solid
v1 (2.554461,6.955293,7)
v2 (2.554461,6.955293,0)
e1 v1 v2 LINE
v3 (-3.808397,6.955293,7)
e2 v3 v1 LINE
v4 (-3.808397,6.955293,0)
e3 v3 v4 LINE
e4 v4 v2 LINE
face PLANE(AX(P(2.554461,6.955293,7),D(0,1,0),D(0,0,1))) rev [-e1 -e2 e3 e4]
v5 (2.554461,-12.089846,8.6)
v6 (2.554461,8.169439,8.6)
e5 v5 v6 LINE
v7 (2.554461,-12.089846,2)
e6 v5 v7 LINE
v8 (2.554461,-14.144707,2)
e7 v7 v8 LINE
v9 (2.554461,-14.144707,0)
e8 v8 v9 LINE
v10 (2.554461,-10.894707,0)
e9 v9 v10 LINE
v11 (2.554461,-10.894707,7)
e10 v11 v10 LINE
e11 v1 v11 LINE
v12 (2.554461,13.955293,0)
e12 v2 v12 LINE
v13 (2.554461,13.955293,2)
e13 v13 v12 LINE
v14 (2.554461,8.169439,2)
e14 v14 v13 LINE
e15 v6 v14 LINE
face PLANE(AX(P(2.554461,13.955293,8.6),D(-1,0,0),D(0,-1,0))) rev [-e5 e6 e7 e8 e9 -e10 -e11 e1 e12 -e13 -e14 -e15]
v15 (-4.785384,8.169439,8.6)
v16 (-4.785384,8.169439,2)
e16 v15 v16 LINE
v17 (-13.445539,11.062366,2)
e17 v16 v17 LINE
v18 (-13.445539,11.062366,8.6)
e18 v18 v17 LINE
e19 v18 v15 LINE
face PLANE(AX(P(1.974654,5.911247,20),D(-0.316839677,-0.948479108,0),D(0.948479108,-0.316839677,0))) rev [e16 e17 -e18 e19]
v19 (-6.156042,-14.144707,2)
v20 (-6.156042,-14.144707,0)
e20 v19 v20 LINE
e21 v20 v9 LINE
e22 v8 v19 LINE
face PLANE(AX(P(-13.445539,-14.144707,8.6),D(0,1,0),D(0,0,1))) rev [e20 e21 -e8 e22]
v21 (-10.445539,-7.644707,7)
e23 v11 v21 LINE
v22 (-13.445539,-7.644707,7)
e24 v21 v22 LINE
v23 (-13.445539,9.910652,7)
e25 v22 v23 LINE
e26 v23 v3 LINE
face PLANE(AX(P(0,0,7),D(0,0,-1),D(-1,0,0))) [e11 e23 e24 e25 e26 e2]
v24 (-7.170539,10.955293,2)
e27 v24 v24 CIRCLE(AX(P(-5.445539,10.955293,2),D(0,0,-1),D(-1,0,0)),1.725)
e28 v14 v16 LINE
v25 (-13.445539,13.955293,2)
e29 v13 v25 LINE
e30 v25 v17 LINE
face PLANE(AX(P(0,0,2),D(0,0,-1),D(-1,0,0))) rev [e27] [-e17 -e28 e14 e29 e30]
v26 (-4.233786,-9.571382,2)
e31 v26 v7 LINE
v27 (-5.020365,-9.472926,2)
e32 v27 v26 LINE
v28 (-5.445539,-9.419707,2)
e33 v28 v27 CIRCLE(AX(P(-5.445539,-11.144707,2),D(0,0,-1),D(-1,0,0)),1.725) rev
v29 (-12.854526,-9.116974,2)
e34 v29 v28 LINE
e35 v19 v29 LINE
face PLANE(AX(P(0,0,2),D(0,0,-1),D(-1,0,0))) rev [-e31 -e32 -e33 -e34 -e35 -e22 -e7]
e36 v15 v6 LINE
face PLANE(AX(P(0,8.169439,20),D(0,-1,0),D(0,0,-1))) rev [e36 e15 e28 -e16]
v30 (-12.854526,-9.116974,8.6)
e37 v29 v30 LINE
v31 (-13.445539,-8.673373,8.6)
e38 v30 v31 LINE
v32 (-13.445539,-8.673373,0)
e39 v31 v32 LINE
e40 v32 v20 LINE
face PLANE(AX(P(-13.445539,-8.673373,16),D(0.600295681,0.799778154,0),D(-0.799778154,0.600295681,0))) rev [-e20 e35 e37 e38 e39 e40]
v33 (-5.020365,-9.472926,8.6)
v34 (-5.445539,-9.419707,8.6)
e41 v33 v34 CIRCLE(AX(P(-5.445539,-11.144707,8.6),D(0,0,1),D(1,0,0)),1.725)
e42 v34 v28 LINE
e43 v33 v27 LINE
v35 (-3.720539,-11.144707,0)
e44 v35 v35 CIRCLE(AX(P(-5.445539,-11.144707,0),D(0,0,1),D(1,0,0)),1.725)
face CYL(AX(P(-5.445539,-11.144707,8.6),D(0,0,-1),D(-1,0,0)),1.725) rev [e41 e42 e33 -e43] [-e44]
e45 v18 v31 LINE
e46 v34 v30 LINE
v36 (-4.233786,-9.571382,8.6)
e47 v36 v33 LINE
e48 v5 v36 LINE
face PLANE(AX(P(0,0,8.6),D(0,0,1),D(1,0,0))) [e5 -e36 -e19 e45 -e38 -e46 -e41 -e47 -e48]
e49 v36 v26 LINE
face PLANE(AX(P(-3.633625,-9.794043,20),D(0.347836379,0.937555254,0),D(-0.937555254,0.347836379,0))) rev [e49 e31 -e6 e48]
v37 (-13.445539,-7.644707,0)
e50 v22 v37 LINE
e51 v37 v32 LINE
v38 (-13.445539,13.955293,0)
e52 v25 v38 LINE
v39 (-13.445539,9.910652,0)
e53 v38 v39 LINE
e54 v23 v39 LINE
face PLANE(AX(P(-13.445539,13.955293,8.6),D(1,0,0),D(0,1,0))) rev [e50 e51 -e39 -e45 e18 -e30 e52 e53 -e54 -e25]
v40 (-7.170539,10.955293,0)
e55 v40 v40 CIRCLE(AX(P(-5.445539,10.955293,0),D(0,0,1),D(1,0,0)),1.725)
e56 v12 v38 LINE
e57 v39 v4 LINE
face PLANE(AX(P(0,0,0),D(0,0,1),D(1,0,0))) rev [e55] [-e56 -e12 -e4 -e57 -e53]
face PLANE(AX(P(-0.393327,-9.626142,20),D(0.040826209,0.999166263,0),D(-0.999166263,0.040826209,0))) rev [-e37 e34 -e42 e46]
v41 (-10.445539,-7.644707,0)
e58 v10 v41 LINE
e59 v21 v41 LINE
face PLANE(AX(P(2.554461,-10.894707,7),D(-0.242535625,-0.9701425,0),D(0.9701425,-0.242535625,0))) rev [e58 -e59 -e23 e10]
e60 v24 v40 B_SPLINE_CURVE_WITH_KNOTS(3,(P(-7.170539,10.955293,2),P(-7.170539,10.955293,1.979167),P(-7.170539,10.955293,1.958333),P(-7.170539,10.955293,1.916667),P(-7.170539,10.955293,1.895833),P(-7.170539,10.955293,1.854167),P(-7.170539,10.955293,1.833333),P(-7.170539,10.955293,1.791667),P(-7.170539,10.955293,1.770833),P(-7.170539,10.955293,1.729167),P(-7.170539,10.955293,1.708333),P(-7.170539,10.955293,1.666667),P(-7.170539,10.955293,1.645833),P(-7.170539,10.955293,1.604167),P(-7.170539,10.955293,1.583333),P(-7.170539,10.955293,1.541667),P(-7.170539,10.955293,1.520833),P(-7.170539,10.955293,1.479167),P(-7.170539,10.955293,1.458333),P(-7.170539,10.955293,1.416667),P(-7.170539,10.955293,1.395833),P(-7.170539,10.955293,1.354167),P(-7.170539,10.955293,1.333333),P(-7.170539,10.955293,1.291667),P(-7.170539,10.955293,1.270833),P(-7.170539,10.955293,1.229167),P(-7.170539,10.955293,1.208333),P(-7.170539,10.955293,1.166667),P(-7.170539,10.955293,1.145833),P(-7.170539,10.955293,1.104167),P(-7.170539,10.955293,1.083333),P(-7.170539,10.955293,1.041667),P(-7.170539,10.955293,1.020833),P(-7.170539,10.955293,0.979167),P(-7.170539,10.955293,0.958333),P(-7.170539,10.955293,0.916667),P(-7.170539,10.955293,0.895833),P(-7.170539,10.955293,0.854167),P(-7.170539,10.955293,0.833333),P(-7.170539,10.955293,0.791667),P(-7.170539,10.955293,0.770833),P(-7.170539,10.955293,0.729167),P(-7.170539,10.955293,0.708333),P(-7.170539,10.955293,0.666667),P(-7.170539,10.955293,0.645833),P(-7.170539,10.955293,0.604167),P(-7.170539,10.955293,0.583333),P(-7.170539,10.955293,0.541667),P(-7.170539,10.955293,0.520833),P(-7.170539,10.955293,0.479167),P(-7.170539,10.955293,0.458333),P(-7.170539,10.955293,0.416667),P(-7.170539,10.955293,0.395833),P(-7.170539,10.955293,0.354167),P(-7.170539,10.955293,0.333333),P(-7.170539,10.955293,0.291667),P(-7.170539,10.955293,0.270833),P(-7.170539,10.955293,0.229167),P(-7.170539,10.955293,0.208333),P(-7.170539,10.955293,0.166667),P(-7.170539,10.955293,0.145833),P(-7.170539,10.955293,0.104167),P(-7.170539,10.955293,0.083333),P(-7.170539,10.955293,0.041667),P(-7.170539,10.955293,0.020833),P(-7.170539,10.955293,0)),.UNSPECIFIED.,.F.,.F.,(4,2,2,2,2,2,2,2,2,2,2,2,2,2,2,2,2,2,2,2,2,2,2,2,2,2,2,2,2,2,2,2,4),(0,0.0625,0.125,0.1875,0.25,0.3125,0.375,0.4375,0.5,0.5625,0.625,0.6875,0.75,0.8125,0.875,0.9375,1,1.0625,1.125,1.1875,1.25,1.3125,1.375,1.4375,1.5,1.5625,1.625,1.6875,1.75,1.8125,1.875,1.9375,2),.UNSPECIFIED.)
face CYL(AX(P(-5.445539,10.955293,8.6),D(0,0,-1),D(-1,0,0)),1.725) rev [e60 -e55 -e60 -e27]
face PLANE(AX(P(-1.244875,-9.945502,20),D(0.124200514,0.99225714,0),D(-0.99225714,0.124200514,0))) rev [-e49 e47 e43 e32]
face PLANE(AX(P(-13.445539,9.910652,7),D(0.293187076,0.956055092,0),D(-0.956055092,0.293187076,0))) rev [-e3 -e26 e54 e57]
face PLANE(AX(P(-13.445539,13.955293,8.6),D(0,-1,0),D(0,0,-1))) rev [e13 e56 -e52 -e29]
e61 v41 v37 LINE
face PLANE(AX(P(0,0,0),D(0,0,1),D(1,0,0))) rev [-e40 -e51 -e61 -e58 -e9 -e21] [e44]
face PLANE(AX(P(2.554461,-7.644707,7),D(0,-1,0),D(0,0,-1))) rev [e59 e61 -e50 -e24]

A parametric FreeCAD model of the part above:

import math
import FreeCAD as App
import Part
import Sketcher
Q = App.Units.Quantity


def add_polygon(sketch, points):
    """Adds a closed chain of lines whose ends are joined by coincident constraints."""
    first, n = sketch.GeometryCount, len(points)
    for a, b in zip(points, points[1:] + points[:1]):
        sketch.addGeometry(Part.LineSegment(App.Vector(*a, 0), App.Vector(*b, 0)), False)
    for i in range(n):
        sketch.addConstraint(Sketcher.Constraint("Coincident", first + i, 2, first + (i + 1) % n, 1))

doc = App.newDocument("Part")
body = doc.addObject("PartDesign::Body", "Body")

# Sketch on XY plane
sketch1 = body.newObject("Sketcher::SketchObject", "Sketch")
sketch1.AttachmentSupport = (doc.getObject("XY_Plane"), [""])
sketch1.MapMode = "FlatFace"
add_polygon(sketch1, [(-13.4, 14), (-13.4, -14.1), (2.6, -14.1), (2.6, 14)])  # lines 0-3
sketch1.addGeometry(Part.Circle(App.Vector(-5.4, -11.1, 0), App.Vector(0, 0, 1), 1.7), False)  # 4
sketch1.addGeometry(Part.Circle(App.Vector(-5.4, 11, 0), App.Vector(0, 0, 1), 1.7), False)  # 5
sketch1.addConstraint([
    Sketcher.Constraint("Vertical", 0),
    Sketcher.Constraint("Horizontal", 1),
    Sketcher.Constraint("Vertical", 2),
    Sketcher.Constraint("Horizontal", 3),
    Sketcher.Constraint("Equal", 4, 5),
    Sketcher.Constraint("Vertical", 4, 3, 5, 3),
    Sketcher.Constraint("Diameter", 4, Q("3.45 mm")),
    Sketcher.Constraint("DistanceX", 1, 1, 1, 2, Q("16 mm")),
    Sketcher.Constraint("DistanceY", 0, 2, 0, 1, Q("28.1 mm")),
    Sketcher.Constraint("DistanceX", 0, 2, 4, 3, Q("8 mm")),
    Sketcher.Constraint("DistanceY", 0, 2, 4, 3, Q("3 mm")),
    Sketcher.Constraint("DistanceY", 5, 3, 2, 2, Q("3 mm")),
    Sketcher.Constraint("DistanceX", 4, 3, -1, 1, Q("5.445539 mm")),
    Sketcher.Constraint("DistanceY", 4, 3, -1, 1, Q("11.144707 mm")),
])
pad1 = body.newObject("PartDesign::Pad", "Pad")
pad1.Profile = sketch1
pad1.Length = 8.6

# Sketch on XY plane
sketch2 = body.newObject("Sketcher::SketchObject", "Sketch001")
sketch2.AttachmentSupport = (doc.getObject("XY_Plane"), [""])
sketch2.MapMode = "FlatFace"
add_polygon(sketch2, [(3, 7), (3, -8), (-13, -8), (-13, 7)])  # lines 0-3
sketch2.addConstraint([
    Sketcher.Constraint("Vertical", 0),
    Sketcher.Constraint("Horizontal", 1),
    Sketcher.Constraint("Vertical", 2),
    Sketcher.Constraint("Horizontal", 3),
    Sketcher.Constraint("DistanceX", 1, 2, 1, 1, Q("16 mm")),
    Sketcher.Constraint("DistanceY", 0, 2, 0, 1, Q("14.6 mm")),
    Sketcher.Constraint("DistanceX", -1, 1, 0, 2, Q("2.554461 mm")),
    Sketcher.Constraint("DistanceY", 0, 2, -1, 1, Q("7.644707 mm")),
])
pocket1 = body.newObject("PartDesign::Pocket", "Pocket")
pocket1.Profile = sketch2
pocket1.Length = 7
pocket1.Reversed = True

# Sketch on XY plane
sketch3 = body.newObject("Sketcher::SketchObject", "Sketch002")
sketch3.AttachmentSupport = (doc.getObject("XY_Plane"), [""])
sketch3.MapMode = "FlatFace"
add_polygon(sketch3, [(-13, -14), (-13, -9), (-6, -14)])  # lines 0-2
sketch3.addConstraint([
    Sketcher.Constraint("Vertical", 0),
    Sketcher.Constraint("Horizontal", 2),
    Sketcher.Constraint("Distance", 1, Q("9.114399 mm")),
    Sketcher.Constraint("DistanceX", 2, 2, 2, 1, Q("7.289497 mm")),
    Sketcher.Constraint("DistanceX", 0, 2, -1, 1, Q("13.445539 mm")),
    Sketcher.Constraint("DistanceY", 0, 2, -1, 1, Q("8.673373 mm")),
])
pocket2 = body.newObject("PartDesign::Pocket", "Pocket001")
pocket2.Profile = sketch3
pocket2.Length = 16
pocket2.Reversed = True

# Sketch on XY plane
sketch4 = body.newObject("Sketcher::SketchObject", "Sketch003")
sketch4.AttachmentSupport = (doc.getObject("XY_Plane"), [""])
sketch4.MapMode = "FlatFace"
add_polygon(sketch4, [(2.6, -7.6), (2.6, -10.9), (-10.4, -7.6)])  # lines 0-2
add_polygon(sketch4, [(-13.4, 7), (-13.4, 9.9), (-3.8, 7)])  # lines 3-5
sketch4.addConstraint([
    Sketcher.Constraint("Vertical", 0),
    Sketcher.Constraint("Horizontal", 2),
    Sketcher.Constraint("Vertical", 3),
    Sketcher.Constraint("Horizontal", 5),
    Sketcher.Constraint("DistanceX", 2, 1, 2, 2, Q("13 mm")),
    Sketcher.Constraint("DistanceX", 3, 2, 1, 2, Q("3 mm")),
    Sketcher.Constraint("DistanceY", 0, 2, 0, 1, Q("3.25 mm")),
    Sketcher.Constraint("DistanceY", 2, 2, 4, 2, Q("14.6 mm")),
    Sketcher.Constraint("DistanceX", 5, 2, 5, 1, Q("9.637142 mm")),
    Sketcher.Constraint("DistanceY", 3, 1, 3, 2, Q("2.955358 mm")),
    Sketcher.Constraint("DistanceX", -1, 1, 0, 2, Q("2.554461 mm")),
    Sketcher.Constraint("DistanceY", -1, 1, 3, 2, Q("9.910652 mm")),
])
pocket3 = body.newObject("PartDesign::Pocket", "Pocket002")
pocket3.Profile = sketch4
pocket3.Length = 7
pocket3.Reversed = True

# Sketch on XY plane
sketch5 = body.newObject("Sketcher::SketchObject", "Sketch004")
sketch5.AttachmentSupport = (doc.getObject("XY_Plane"), [""])
sketch5.MapMode = "FlatFace"
sketch5.AttachmentOffset = App.Placement(App.Vector(0, 0, 2), App.Rotation())
add_polygon(sketch5, [(2.6, 14), (2.6, 8.2), (-4.8, 8.2), (-13.4, 11.1), (-13.4, 14)])  # lines 0-4
sketch5.addGeometry(Part.LineSegment(App.Vector(-6.2, -14.1, 0), App.Vector(-12.9, -9.1, 0)), False)  # 5
sketch5.addGeometry(Part.LineSegment(App.Vector(-12.9, -9.1, 0), App.Vector(-5.4, -9.4, 0)), False)  # 6
sketch5.addGeometry(Part.ArcOfCircle(Part.Circle(App.Vector(-5.4, -11.1, 0), App.Vector(0, 0, 1), 1.7), math.radians(90), math.radians(180)), False)  # 7
sketch5.addGeometry(Part.ArcOfCircle(Part.Circle(App.Vector(-5.4, -11.1, 0), App.Vector(0, 0, 1), 1.7), math.radians(180), math.radians(436)), False)  # 8
sketch5.addGeometry(Part.LineSegment(App.Vector(-5, -9.5, 0), App.Vector(-4.2, -9.6, 0)), False)  # 9
sketch5.addGeometry(Part.LineSegment(App.Vector(-4.2, -9.6, 0), App.Vector(2.6, -12.1, 0)), False)  # 10
sketch5.addGeometry(Part.LineSegment(App.Vector(2.6, -12.1, 0), App.Vector(2.6, -14.1, 0)), False)  # 11
sketch5.addGeometry(Part.LineSegment(App.Vector(2.6, -14.1, 0), App.Vector(-6.2, -14.1, 0)), False)  # 12
sketch5.addConstraint([
    Sketcher.Constraint("Coincident", 5, 2, 6, 1),
    Sketcher.Constraint("Coincident", 6, 2, 7, 1),
    Sketcher.Constraint("Tangent", 7, 2, 8, 1),
    Sketcher.Constraint("Coincident", 8, 2, 9, 1),
    Sketcher.Constraint("Coincident", 9, 2, 10, 1),
    Sketcher.Constraint("Coincident", 10, 2, 11, 1),
    Sketcher.Constraint("Coincident", 11, 2, 12, 1),
    Sketcher.Constraint("Coincident", 12, 2, 5, 1),
    Sketcher.Constraint("Vertical", 0),
    Sketcher.Constraint("Horizontal", 1),
    Sketcher.Constraint("Vertical", 3),
    Sketcher.Constraint("Horizontal", 4),
    Sketcher.Constraint("Vertical", 11),
    Sketcher.Constraint("Horizontal", 12),
    Sketcher.Constraint("Equal", 7, 8),
    Sketcher.Constraint("Horizontal", 8, 3, 7, 2),
    Sketcher.Constraint("Vertical", 8, 3, 6, 2),
    Sketcher.Constraint("Vertical", 4, 2, 10, 2),
    Sketcher.Constraint("DistanceX", 4, 1, 4, 2, Q("16 mm")),
    Sketcher.Constraint("Radius", 7, Q("1.725 mm")),
    Sketcher.Constraint("DistanceX", 8, 3, 0, 2, Q("8 mm")),
    Sketcher.Constraint("DistanceY", 11, 2, 7, 3, Q("3 mm")),
    Sketcher.Constraint("DistanceY", 8, 3, 3, 2, Q("25.1 mm")),
    Sketcher.Constraint("DistanceY", 11, 2, 11, 1, Q("2.054861 mm")),
    Sketcher.Constraint("Distance", 2, Q("9.13057 mm")),
    Sketcher.Constraint("Distance", 5, Q("8.375428 mm")),
    Sketcher.Constraint("Distance", 6, Q("7.41517 mm")),
    Sketcher.Constraint("Distance", 10, Q("7.24037 mm")),
    Sketcher.Constraint("DistanceX", 1, 2, 1, 1, Q("7.339845 mm")),
    Sketcher.Constraint("DistanceX", 12, 2, 12, 1, Q("8.710503 mm")),
    Sketcher.Constraint("DistanceY", 0, 2, 0, 1, Q("5.785854 mm")),
    Sketcher.Constraint("DistanceX", 7, 3, -1, 1, Q("5.445539 mm")),
    Sketcher.Constraint("DistanceY", -1, 1, 0, 2, Q("8.169439 mm")),
    Sketcher.Constraint("DistanceY", 9, 2, -1, 1, Q("9.571382 mm")),
    Sketcher.Constraint("DistanceY", 8, 2, 6, 2, Q("0.053219 mm")),
])
pocket4 = body.newObject("PartDesign::Pocket", "Pocket003")
pocket4.Profile = sketch5
pocket4.Length = 18
pocket4.Reversed = True

doc.recompute()
